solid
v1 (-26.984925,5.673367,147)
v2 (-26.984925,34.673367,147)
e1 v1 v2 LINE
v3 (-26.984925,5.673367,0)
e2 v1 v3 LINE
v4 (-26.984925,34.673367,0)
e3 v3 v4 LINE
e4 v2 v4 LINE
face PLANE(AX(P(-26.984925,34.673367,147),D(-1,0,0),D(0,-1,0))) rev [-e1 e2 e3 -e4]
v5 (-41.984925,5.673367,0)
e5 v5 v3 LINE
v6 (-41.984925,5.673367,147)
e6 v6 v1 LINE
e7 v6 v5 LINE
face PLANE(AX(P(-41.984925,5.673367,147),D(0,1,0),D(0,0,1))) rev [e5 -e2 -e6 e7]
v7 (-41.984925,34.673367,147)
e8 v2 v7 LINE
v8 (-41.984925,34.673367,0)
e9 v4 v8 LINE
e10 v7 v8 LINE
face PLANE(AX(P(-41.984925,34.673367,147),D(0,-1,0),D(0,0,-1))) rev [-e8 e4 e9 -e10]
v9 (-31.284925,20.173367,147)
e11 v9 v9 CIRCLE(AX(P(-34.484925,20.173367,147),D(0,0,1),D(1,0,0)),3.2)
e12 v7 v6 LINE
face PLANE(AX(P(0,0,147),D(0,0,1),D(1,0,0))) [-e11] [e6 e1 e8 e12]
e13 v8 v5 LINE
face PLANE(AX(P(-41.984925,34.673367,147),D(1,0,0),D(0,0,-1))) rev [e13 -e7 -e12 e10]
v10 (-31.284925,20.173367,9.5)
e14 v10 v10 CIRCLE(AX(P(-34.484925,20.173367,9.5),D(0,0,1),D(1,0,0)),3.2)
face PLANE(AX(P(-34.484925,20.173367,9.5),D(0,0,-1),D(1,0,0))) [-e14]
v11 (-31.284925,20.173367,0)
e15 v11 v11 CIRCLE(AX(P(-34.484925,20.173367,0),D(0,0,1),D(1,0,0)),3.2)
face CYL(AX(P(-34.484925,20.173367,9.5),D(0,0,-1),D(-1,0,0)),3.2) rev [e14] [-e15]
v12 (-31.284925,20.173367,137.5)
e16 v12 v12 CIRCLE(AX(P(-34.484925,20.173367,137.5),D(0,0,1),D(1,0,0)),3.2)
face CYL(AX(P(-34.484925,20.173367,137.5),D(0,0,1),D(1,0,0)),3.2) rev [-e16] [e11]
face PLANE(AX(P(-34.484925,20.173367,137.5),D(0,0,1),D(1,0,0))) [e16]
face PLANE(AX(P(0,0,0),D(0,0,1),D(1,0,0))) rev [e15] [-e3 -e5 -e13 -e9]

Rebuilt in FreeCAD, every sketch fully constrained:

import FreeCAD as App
import Part
import Sketcher

V = App.Vector
Q = App.Units.Quantity


def add_polygon(sketch, points):
    """Adds a closed chain of lines whose ends are joined by coincident constraints."""
    first, n = sketch.GeometryCount, len(points)
    for a, b in zip(points, points[1:] + points[:1]):
        sketch.addGeometry(Part.LineSegment(App.Vector(*a, 0), App.Vector(*b, 0)), False)
    for i in range(n):
        sketch.addConstraint(Sketcher.Constraint("Coincident", first + i, 2, first + (i + 1) % n, 1))

doc = App.newDocument("Part")
params = doc.addObject("Spreadsheet::Sheet", "Params")
for row, (alias, value) in enumerate([
    ("sketch1_width", "15 mm"),
    ("sketch1_height", "29 mm"),
    ("pad1_length", "147 mm"),
    ("sketch2_diameter", "6.4 mm"),
    ("pocket1_length", "9.5 mm"),
], start=1):
    params.set(f"A{row}", alias)
    params.set(f"B{row}", "=" + value)
    params.setAlias(f"B{row}", alias)

body = doc.addObject("PartDesign::Body", "Body")

# Sketch on XY plane
sketch1 = body.newObject("Sketcher::SketchObject", "Sketch")
sketch1.AttachmentSupport = (doc.getObject("XY_Plane"), [""])
sketch1.MapMode = "FlatFace"
add_polygon(sketch1, [(-41.984925, 34.673367), (-41.984925, 5.673367), (-26.984925, 5.673367), (-26.984925, 34.673367)])  # lines 0-3
sketch1.addConstraint([
    Sketcher.Constraint("Vertical", 0),
    Sketcher.Constraint("Horizontal", 1),
    Sketcher.Constraint("Vertical", 2),
    Sketcher.Constraint("Horizontal", 3),
    Sketcher.Constraint("DistanceX", 1, 1, 1, 2, Q("15 mm")),
    Sketcher.Constraint("DistanceY", 0, 2, 0, 1, Q("29 mm")),
    Sketcher.Constraint("DistanceX", 0, 2, -1, 1, Q("41.984925 mm")),
    Sketcher.Constraint("DistanceY", -1, 1, 0, 2, Q("5.673367 mm")),
])
sketch1.setExpression("Constraints[8]", "Params.sketch1_width")
sketch1.setExpression("Constraints[9]", "Params.sketch1_height")
pad1 = body.newObject("PartDesign::Pad", "Pad")
pad1.Profile = sketch1
pad1.setExpression("Length", "Params.pad1_length")

# Sketch on XY plane
sketch2 = body.newObject("Sketcher::SketchObject", "Sketch001")
sketch2.AttachmentSupport = (doc.getObject("XY_Plane"), [""])
sketch2.MapMode = "FlatFace"
sketch2.AttachmentOffset = App.Placement(V(0, 0, 147), App.Rotation())
sketch2.addGeometry(Part.Circle(V(-34.484925, 20.173367, 0), V(0, 0, 1), 3.2), False)
sketch2.addConstraint([
    Sketcher.Constraint("Diameter", 0, Q("6.4 mm")),
    Sketcher.Constraint("DistanceX", 0, 3, -1, 1, Q("34.484925 mm")),
    Sketcher.Constraint("DistanceY", -1, 1, 0, 3, Q("20.173367 mm")),
])
sketch2.setExpression("Constraints[0]", "Params.sketch2_diameter")
pocket1 = body.newObject("PartDesign::Pocket", "Pocket")
pocket1.Profile = sketch2
pocket1.setExpression("Length", "Params.pocket1_length")
doc.recompute()

datumplane = body.newObject("PartDesign::Plane", "DatumPlane")
datumplane.AttachmentSupport = (doc.getObject("XY_Plane"), [""])
datumplane.MapMode = "FlatFace"
datumplane.AttachmentOffset = App.Placement(V(0, 0, 73.5), App.Rotation())
mirrored = body.newObject("PartDesign::Mirrored", "Mirrored")
mirrored.Originals = [pocket1]
mirrored.MirrorPlane = (datumplane, [""])
body.Tip = mirrored

doc.recompute()
